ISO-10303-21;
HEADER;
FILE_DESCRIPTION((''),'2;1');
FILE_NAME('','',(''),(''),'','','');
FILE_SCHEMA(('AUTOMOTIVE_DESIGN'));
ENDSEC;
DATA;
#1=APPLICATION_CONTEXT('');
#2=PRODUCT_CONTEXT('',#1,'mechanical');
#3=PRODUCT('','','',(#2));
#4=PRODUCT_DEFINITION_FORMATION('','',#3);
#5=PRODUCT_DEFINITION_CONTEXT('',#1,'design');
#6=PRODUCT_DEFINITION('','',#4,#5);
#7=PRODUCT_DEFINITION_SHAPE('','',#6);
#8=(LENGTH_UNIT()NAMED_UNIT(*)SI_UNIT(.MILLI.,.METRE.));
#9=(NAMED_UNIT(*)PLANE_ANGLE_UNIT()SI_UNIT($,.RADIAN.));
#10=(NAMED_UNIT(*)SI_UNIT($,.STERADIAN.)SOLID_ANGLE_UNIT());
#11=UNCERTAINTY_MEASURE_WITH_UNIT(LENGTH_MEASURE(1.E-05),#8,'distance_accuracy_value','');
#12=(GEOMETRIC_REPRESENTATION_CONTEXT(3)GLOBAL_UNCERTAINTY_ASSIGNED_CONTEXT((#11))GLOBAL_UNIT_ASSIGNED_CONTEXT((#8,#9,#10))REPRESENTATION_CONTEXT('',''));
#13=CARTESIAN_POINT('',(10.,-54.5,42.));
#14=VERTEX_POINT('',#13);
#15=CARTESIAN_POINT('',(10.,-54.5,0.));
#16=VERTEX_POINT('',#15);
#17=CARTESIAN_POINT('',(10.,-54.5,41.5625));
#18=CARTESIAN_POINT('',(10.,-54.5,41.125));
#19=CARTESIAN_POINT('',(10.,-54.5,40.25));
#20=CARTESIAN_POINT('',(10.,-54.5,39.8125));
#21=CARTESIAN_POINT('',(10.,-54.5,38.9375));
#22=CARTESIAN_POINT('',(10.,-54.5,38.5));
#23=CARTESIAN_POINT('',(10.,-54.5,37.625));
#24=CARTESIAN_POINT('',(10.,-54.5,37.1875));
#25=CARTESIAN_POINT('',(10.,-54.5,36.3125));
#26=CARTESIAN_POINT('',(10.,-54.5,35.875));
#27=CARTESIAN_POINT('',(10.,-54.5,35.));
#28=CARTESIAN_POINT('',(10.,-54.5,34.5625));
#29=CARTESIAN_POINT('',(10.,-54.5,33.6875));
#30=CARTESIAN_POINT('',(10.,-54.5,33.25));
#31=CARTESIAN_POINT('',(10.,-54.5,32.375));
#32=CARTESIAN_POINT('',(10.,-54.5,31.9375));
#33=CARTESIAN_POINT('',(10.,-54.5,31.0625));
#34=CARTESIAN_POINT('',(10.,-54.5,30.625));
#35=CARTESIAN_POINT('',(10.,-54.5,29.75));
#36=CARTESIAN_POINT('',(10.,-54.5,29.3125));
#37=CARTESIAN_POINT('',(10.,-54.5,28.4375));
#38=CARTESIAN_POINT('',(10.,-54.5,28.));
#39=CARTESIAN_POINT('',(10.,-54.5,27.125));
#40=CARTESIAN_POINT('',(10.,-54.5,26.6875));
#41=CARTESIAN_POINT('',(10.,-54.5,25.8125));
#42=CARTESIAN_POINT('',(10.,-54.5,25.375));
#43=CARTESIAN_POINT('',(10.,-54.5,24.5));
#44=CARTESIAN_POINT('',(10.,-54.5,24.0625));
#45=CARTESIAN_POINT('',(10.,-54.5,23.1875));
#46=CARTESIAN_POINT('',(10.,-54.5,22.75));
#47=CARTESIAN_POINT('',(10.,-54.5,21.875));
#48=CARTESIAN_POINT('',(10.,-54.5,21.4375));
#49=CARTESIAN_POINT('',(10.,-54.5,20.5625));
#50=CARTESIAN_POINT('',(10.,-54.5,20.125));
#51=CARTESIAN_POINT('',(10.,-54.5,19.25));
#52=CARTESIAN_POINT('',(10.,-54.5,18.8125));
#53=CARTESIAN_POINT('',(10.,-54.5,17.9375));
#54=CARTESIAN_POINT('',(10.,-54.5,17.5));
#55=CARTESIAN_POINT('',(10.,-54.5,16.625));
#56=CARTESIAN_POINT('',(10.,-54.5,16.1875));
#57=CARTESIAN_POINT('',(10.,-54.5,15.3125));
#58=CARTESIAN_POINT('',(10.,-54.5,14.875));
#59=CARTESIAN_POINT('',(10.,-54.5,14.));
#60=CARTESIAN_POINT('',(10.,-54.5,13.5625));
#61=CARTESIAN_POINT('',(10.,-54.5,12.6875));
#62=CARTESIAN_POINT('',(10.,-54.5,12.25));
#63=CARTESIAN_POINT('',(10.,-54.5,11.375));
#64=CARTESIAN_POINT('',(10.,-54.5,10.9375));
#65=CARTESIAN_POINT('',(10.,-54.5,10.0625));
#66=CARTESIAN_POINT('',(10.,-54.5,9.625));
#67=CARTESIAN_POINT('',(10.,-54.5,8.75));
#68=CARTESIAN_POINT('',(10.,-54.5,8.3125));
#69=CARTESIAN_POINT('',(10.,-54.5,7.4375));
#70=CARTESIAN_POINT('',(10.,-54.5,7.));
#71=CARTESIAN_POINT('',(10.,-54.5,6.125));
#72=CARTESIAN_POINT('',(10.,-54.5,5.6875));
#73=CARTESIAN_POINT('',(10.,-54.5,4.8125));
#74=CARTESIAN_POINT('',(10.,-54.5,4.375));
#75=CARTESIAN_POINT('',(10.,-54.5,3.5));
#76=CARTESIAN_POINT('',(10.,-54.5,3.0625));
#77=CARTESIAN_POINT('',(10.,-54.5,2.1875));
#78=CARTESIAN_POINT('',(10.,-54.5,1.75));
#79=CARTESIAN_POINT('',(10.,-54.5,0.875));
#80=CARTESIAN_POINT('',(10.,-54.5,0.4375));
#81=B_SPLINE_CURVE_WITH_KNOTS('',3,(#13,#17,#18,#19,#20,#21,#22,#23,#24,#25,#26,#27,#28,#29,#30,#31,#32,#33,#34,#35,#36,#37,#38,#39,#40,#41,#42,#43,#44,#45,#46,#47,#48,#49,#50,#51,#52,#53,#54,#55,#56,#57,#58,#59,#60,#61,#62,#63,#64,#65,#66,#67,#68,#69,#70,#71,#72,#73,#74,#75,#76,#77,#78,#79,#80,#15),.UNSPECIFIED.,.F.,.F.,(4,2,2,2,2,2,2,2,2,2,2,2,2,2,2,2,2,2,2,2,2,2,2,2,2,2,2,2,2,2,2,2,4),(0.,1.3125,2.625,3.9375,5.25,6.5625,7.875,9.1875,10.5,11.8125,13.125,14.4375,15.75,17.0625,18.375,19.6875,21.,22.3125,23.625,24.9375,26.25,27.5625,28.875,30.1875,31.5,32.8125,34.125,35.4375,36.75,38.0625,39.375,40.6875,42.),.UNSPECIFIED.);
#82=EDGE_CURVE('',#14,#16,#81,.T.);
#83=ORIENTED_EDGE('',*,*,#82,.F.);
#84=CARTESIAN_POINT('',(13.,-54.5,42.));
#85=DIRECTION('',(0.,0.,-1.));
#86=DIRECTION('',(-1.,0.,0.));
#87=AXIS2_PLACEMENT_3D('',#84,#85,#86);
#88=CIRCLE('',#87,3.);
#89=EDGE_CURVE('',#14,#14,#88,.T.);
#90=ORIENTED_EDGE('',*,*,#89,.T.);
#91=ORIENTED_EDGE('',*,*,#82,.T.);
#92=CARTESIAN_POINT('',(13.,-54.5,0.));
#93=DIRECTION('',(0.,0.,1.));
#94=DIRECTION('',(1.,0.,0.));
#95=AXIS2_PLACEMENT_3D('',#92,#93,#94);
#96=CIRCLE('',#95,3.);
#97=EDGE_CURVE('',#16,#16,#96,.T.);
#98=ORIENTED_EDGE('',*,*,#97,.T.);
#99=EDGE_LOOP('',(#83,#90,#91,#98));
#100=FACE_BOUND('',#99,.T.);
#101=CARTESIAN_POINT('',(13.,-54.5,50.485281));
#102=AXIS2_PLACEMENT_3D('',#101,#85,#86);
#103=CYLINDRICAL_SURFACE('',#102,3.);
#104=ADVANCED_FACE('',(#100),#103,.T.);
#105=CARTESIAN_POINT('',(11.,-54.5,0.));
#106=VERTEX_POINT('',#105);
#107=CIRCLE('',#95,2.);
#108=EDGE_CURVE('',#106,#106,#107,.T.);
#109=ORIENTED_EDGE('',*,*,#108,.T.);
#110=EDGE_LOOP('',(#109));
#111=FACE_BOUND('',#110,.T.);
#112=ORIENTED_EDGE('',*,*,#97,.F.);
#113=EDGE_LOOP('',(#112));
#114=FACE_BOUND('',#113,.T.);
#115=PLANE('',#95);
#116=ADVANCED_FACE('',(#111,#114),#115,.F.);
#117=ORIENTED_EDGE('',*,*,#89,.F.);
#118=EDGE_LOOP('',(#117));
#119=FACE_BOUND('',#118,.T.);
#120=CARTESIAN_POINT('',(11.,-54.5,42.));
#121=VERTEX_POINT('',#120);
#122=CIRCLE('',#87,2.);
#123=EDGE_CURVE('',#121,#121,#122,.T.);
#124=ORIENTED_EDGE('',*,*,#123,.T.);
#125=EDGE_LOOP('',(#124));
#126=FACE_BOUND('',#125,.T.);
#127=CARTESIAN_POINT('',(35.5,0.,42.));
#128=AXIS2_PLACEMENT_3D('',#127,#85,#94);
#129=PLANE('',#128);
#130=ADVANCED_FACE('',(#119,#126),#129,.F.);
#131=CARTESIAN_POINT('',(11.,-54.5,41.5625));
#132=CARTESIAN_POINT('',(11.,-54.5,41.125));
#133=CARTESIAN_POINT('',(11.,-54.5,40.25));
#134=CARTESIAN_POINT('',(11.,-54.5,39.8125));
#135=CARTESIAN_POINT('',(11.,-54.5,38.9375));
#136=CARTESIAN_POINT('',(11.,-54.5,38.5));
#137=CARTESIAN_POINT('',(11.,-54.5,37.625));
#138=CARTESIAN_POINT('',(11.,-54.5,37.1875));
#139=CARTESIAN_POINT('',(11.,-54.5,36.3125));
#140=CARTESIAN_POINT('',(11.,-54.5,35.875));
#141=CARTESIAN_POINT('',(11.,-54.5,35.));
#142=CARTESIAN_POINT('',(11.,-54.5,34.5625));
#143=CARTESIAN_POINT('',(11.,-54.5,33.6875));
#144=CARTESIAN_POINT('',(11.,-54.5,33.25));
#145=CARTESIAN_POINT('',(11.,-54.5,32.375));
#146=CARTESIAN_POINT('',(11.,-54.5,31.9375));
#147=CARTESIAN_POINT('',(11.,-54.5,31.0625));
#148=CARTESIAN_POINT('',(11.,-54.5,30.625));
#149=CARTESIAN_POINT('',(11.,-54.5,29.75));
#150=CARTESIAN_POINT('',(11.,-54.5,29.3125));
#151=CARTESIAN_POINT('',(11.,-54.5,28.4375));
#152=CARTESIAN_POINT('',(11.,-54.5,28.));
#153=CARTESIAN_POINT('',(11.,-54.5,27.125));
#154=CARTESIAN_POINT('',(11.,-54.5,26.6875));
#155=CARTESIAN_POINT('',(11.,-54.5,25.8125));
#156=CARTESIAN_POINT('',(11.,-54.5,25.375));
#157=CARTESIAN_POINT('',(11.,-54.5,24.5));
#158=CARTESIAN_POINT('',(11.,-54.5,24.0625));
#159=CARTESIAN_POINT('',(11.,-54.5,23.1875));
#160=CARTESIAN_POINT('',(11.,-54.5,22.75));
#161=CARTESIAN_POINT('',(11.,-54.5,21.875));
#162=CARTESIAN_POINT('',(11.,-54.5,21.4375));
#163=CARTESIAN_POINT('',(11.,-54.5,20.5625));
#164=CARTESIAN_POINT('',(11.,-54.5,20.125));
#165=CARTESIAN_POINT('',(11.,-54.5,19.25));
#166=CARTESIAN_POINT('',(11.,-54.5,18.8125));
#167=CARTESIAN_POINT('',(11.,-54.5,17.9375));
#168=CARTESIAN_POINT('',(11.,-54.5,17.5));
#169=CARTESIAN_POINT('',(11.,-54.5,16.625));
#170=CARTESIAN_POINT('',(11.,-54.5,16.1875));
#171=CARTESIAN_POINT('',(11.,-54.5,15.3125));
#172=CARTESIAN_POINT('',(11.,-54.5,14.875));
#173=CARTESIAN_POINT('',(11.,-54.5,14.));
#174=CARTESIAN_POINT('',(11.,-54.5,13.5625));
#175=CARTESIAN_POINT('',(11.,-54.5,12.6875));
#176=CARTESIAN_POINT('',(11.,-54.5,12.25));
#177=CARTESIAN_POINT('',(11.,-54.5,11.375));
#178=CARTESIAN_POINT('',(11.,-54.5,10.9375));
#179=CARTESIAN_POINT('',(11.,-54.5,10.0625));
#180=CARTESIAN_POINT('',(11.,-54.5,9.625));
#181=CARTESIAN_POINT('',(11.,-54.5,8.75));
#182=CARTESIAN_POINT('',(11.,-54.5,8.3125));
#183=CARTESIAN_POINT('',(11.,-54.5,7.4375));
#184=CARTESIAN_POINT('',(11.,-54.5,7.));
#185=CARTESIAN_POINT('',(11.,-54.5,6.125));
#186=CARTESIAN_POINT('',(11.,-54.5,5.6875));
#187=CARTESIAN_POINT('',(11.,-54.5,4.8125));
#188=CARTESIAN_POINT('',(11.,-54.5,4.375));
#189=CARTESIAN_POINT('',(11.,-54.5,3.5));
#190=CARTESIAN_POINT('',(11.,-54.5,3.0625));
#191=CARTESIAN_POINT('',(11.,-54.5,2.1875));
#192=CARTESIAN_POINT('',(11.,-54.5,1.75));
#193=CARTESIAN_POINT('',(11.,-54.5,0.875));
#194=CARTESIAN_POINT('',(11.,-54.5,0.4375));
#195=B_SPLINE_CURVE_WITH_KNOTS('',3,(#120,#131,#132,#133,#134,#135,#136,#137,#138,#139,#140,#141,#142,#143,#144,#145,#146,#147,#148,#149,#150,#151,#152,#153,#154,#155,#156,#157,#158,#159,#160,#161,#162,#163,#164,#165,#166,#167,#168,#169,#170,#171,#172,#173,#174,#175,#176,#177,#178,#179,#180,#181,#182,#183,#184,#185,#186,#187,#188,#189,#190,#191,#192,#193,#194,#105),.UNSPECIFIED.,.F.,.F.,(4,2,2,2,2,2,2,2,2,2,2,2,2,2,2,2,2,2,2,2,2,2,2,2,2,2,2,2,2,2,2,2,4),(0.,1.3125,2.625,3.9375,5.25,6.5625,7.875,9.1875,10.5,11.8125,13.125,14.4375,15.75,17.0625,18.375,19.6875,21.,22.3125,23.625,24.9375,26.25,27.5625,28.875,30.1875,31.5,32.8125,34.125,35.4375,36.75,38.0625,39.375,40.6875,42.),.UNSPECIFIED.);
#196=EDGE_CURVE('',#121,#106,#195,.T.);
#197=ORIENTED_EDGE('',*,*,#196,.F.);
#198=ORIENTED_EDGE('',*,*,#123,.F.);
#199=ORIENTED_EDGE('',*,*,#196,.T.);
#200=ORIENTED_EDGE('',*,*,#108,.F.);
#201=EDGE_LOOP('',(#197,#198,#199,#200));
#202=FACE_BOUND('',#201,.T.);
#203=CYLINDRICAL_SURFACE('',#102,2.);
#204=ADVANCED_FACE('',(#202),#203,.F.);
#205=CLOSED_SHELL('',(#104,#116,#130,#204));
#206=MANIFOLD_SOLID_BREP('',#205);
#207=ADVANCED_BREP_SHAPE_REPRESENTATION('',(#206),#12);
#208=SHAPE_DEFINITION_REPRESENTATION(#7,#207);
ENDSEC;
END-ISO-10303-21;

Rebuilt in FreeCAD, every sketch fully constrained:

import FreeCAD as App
import Part
import Sketcher
Q = App.Units.Quantity

doc = App.newDocument("Part")
body = doc.addObject("PartDesign::Body", "Body")

sketch1 = body.newObject("Sketcher::SketchObject", "Sketch")
sketch1.AttachmentSupport = (doc.getObject("XY_Plane"), [""])
sketch1.MapMode = "FlatFace"
sketch1.addGeometry([
    Part.Circle(App.Vector(13, -54.5, 0), App.Vector(0, 0, 1), 3),
    Part.Circle(App.Vector(13, -54.5, 0), App.Vector(0, 0, 1), 2),
], False)
sketch1.addConstraint([
    Sketcher.Constraint("Coincident", 1, 3, 0, 3),
    Sketcher.Constraint("Diameter", 0, Q("6 mm")),
    Sketcher.Constraint("Diameter", 1, Q("4 mm")),
    Sketcher.Constraint("DistanceX", -1, 1, 0, 3, Q("13 mm")),
    Sketcher.Constraint("DistanceY", 0, 3, -1, 1, Q("54.5 mm")),
])
pad1 = body.newObject("PartDesign::Pad", "Pad")
pad1.Profile = sketch1
pad1.Length = 42

doc.recompute()
